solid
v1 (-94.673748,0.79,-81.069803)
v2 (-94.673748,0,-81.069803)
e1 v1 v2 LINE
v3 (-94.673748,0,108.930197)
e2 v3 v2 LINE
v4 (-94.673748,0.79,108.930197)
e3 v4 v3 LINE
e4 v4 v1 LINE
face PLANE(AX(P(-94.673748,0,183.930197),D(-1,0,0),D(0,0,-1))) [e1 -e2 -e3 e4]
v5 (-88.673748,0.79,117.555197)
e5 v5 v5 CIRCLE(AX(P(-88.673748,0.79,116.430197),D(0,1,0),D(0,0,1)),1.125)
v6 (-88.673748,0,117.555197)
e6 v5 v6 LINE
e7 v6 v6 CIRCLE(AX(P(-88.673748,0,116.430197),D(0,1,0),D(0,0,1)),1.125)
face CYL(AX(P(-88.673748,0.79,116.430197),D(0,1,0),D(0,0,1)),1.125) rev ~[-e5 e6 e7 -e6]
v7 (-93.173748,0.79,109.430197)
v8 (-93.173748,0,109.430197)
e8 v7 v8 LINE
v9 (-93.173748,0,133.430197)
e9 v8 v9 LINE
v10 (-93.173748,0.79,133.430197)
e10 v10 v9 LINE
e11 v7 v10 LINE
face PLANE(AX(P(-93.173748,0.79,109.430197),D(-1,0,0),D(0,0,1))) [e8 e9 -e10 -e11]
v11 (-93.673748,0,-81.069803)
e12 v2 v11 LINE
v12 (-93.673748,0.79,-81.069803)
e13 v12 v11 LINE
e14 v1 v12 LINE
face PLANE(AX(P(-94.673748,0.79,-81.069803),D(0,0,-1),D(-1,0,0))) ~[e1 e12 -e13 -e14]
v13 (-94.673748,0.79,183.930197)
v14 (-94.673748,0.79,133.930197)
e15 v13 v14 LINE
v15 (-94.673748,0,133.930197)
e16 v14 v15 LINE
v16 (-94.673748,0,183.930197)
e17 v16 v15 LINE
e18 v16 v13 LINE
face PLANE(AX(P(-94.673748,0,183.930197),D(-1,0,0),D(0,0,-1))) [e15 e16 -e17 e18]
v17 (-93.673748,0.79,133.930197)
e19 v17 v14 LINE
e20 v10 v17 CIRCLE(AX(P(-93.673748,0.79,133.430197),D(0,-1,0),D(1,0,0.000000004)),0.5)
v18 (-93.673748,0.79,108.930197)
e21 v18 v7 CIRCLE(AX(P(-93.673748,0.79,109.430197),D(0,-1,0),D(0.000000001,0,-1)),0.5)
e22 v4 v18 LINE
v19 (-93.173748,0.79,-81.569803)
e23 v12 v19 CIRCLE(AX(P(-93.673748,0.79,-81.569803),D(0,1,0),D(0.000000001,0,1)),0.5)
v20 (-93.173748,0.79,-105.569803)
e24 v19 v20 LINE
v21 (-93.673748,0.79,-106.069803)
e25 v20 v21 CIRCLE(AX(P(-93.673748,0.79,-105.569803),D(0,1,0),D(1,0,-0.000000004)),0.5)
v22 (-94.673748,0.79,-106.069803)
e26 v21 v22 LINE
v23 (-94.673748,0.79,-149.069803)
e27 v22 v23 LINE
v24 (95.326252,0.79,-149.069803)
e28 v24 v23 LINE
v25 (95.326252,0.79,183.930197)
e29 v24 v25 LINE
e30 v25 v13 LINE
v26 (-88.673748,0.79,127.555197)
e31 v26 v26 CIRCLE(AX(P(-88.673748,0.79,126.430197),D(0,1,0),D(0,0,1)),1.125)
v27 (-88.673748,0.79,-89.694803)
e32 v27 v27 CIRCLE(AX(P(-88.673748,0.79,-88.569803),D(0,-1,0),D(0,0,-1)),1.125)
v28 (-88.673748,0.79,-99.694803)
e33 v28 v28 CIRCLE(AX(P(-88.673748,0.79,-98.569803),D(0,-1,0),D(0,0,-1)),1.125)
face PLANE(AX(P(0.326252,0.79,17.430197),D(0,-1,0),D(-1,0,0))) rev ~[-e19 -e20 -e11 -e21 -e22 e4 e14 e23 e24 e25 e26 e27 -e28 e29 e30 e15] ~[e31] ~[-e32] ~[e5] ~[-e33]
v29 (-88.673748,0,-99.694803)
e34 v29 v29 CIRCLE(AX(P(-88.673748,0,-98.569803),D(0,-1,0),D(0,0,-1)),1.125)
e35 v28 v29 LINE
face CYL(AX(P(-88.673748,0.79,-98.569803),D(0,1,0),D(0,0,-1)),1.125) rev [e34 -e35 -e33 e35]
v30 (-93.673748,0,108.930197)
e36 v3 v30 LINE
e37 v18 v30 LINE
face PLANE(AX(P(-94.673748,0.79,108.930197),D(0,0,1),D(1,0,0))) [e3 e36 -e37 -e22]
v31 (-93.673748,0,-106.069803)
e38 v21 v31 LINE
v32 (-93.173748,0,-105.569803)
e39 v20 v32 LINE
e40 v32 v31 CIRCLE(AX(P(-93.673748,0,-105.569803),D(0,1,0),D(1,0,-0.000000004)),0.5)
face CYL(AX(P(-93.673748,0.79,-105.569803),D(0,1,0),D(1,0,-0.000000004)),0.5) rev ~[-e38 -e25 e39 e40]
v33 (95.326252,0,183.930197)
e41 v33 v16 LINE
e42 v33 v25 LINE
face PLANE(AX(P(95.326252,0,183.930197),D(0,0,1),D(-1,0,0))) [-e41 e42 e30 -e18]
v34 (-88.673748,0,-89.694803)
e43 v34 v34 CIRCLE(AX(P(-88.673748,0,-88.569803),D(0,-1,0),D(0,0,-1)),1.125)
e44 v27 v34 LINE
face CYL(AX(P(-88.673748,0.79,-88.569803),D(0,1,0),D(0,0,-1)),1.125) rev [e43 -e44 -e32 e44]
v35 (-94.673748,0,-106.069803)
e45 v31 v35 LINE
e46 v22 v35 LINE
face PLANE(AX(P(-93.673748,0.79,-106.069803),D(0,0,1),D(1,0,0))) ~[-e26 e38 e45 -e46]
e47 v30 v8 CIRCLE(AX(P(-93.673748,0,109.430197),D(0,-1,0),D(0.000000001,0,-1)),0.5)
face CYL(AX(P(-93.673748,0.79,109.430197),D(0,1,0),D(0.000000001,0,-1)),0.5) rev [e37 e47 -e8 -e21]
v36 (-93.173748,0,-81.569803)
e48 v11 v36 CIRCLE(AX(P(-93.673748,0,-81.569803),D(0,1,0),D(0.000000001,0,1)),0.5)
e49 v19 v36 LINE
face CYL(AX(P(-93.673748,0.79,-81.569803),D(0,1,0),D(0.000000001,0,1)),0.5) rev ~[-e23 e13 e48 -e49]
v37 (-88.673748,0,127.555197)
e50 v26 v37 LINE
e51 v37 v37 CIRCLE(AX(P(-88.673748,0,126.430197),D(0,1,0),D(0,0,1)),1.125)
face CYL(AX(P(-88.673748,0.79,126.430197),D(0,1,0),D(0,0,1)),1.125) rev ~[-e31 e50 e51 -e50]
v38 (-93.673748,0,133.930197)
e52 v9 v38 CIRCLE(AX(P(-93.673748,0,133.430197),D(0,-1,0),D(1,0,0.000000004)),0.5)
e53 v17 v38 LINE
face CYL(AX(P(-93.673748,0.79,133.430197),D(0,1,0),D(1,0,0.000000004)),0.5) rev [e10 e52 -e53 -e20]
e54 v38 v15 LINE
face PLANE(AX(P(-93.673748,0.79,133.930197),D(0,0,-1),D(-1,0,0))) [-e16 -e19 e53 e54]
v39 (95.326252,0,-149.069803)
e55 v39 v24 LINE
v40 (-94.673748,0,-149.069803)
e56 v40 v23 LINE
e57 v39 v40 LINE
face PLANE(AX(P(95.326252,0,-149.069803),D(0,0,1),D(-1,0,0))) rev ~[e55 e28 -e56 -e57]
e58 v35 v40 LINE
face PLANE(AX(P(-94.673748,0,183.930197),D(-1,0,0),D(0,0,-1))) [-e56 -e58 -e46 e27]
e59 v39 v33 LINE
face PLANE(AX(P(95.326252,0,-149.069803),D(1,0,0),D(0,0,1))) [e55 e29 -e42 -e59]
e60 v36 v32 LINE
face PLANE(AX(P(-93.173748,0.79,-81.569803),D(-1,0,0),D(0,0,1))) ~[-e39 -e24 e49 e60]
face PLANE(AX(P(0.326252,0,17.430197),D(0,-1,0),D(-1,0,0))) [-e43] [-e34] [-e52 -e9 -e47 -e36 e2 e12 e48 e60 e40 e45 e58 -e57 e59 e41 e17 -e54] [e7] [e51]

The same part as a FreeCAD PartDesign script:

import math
import FreeCAD as App
import Part
import Sketcher
Q = App.Units.Quantity

doc = App.newDocument("Part")
body = doc.addObject("PartDesign::Body", "Body")

sketch1 = doc.addObject("Sketcher::SketchObject", "Sketch")
body.addObject(sketch1)
sketch1.AttachmentSupport = (doc.XZ_Plane, [""])
sketch1.MapMode = "FlatFace"
sketch1.addGeometry([
    Part.LineSegment(App.Vector(95, -149, 0), App.Vector(-95, -149, 0)),
    Part.LineSegment(App.Vector(-95, -149, 0), App.Vector(-95, 184, 0)),
    Part.LineSegment(App.Vector(-95, 184, 0), App.Vector(95, 184, 0)),
    Part.LineSegment(App.Vector(95, 184, 0), App.Vector(95, -149, 0)),
], False)
sketch1.addConstraint([
    Sketcher.Constraint("Coincident", 0, 2, 1, 1),
    Sketcher.Constraint("Coincident", 1, 2, 2, 1),
    Sketcher.Constraint("Coincident", 2, 2, 3, 1),
    Sketcher.Constraint("Coincident", 3, 2, 0, 1),
    Sketcher.Constraint("Horizontal", 0),
    Sketcher.Constraint("Vertical", 1),
    Sketcher.Constraint("Horizontal", 2),
    Sketcher.Constraint("Vertical", 3),
    Sketcher.Constraint("DistanceX", 0, 2, 0, 1, Q("190 mm")),
    Sketcher.Constraint("DistanceY", 1, 1, 1, 2, Q("333 mm")),
    Sketcher.Constraint("DistanceX", 0, 2, -1, 1, Q("94.673748 mm")),
    Sketcher.Constraint("DistanceY", 0, 2, -1, 1, Q("149.069803 mm")),
])
pad1 = doc.addObject("PartDesign::Pad", "Pad")
body.addObject(pad1)
pad1.Profile = sketch1
pad1.Length = 0.79
pad1.Reversed = True

sketch2 = doc.addObject("Sketcher::SketchObject", "Sketch001")
body.addObject(sketch2)
sketch2.AttachmentSupport = (doc.XZ_Plane, [""])
sketch2.MapMode = "FlatFace"
sketch2.AttachmentOffset = App.Placement(App.Vector(0, 0, -0.79), App.Rotation())
sketch2.addGeometry([
    Part.Circle(App.Vector(-88.7, 116.4, 0), App.Vector(0, 0, 1), 1.1),
    Part.Circle(App.Vector(-88.7, 126.4, 0), App.Vector(0, 0, 1), 1.1),
    Part.LineSegment(App.Vector(-93.7, 108.9, 0), App.Vector(-94.7, 108.9, 0)),
    Part.LineSegment(App.Vector(-94.7, 108.9, 0), App.Vector(-94.7, 133.9, 0)),
    Part.LineSegment(App.Vector(-94.7, 133.9, 0), App.Vector(-93.7, 133.9, 0)),
    Part.ArcOfCircle(Part.Circle(App.Vector(-93.7, 133.4, 0), App.Vector(0, 0, 1), 0.5), math.radians(0), math.radians(90)),
    Part.LineSegment(App.Vector(-93.2, 133.4, 0), App.Vector(-93.2, 109.4, 0)),
    Part.ArcOfCircle(Part.Circle(App.Vector(-93.7, 109.4, 0), App.Vector(0, 0, 1), 0.5), math.radians(-90), math.radians(0)),
], False)
sketch2.addConstraint([
    Sketcher.Constraint("Coincident", 2, 2, 3, 1),
    Sketcher.Constraint("Coincident", 3, 2, 4, 1),
    Sketcher.Constraint("Tangent", 4, 2, 5, 2),
    Sketcher.Constraint("Tangent", 5, 1, 6, 1),
    Sketcher.Constraint("Tangent", 6, 2, 7, 2),
    Sketcher.Constraint("Tangent", 7, 1, 2, 1),
    Sketcher.Constraint("Horizontal", 2),
    Sketcher.Constraint("Vertical", 3),
    Sketcher.Constraint("Horizontal", 4),
    Sketcher.Constraint("Vertical", 6),
    Sketcher.Constraint("Equal", 0, 1),
    Sketcher.Constraint("Equal", 5, 7),
    Sketcher.Constraint("Vertical", 0, 3, 1, 3),
    Sketcher.Constraint("Radius", 5, Q("0.5 mm")),
    Sketcher.Constraint("Diameter", 0, Q("2.25 mm")),
    Sketcher.Constraint("DistanceX", 2, 2, 2, 1, Q("1 mm")),
    Sketcher.Constraint("DistanceY", 3, 1, 3, 2, Q("25 mm")),
    Sketcher.Constraint("DistanceY", 0, 3, 1, 3, Q("10 mm")),
    Sketcher.Constraint("DistanceX", 5, 3, 1, 3, Q("5 mm")),
    Sketcher.Constraint("DistanceY", 1, 3, 5, 3, Q("7 mm")),
    Sketcher.Constraint("DistanceX", 0, 3, -1, 1, Q("88.673748 mm")),
    Sketcher.Constraint("DistanceY", -1, 1, 0, 3, Q("116.430197 mm")),
])
pocket1 = doc.addObject("PartDesign::Pocket", "Pocket")
body.addObject(pocket1)
pocket1.Profile = sketch2
pocket1.Length = 0.79
pocket1.Reversed = True
doc.recompute()

datumplane = doc.addObject("PartDesign::Plane", "DatumPlane")
body.addObject(datumplane)
datumplane.AttachmentSupport = (doc.XY_Plane, [""])
datumplane.MapMode = "FlatFace"
datumplane.AttachmentOffset = App.Placement(App.Vector(0, 0, 13.930197), App.Rotation())
mirrored = doc.addObject("PartDesign::Mirrored", "Mirrored")
body.addObject(mirrored)
mirrored.Originals = [pocket1]
mirrored.MirrorPlane = (datumplane, [""])
body.Tip = mirrored

doc.recompute()
